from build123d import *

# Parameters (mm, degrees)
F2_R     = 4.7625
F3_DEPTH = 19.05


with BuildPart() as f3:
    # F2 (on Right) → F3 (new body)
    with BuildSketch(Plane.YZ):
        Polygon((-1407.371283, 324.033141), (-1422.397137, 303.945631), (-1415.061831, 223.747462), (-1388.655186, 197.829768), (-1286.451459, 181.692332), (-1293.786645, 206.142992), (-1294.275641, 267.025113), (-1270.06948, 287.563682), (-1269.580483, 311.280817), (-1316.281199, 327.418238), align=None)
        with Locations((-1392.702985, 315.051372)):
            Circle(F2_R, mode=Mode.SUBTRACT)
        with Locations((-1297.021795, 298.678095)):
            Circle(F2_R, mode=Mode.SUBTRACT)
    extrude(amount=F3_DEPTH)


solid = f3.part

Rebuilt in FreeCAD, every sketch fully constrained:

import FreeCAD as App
import Part
import Sketcher
Q = App.Units.Quantity

doc = App.newDocument("Part")
body = doc.addObject("PartDesign::Body", "Body")

# Sketch on YZ plane
sketch1 = body.newObject("Sketcher::SketchObject", "Sketch")
sketch1.AttachmentSupport = (doc.getObject("YZ_Plane"), [""])
sketch1.MapMode = "FlatFace"
sketch1.addGeometry(Part.LineSegment(App.Vector(-1407.371283, 324.033141, 0), App.Vector(-1422.397137, 303.945631, 0)), False)
sketch1.addGeometry(Part.LineSegment(App.Vector(-1422.397137, 303.945631, 0), App.Vector(-1415.061831, 223.747462, 0)), False)
sketch1.addGeometry(Part.LineSegment(App.Vector(-1415.061831, 223.747462, 0), App.Vector(-1388.655186, 197.829768, 0)), False)
sketch1.addGeometry(Part.LineSegment(App.Vector(-1388.655186, 197.829768, 0), App.Vector(-1286.451459, 181.692332, 0)), False)
sketch1.addGeometry(Part.LineSegment(App.Vector(-1286.451459, 181.692332, 0), App.Vector(-1293.786645, 206.142992, 0)), False)
sketch1.addGeometry(Part.LineSegment(App.Vector(-1293.786645, 206.142992, 0), App.Vector(-1294.275641, 267.025113, 0)), False)
sketch1.addGeometry(Part.LineSegment(App.Vector(-1294.275641, 267.025113, 0), App.Vector(-1270.06948, 287.563682, 0)), False)
sketch1.addGeometry(Part.LineSegment(App.Vector(-1270.06948, 287.563682, 0), App.Vector(-1269.580483, 311.280817, 0)), False)
sketch1.addGeometry(Part.LineSegment(App.Vector(-1269.580483, 311.280817, 0), App.Vector(-1316.281199, 327.418238, 0)), False)
sketch1.addGeometry(Part.LineSegment(App.Vector(-1316.281199, 327.418238, 0), App.Vector(-1407.371283, 324.033141, 0)), False)
sketch1.addGeometry(Part.Circle(App.Vector(-1297.021795, 298.678095, 0), App.Vector(0, 0, 1), 4.7625), False)
sketch1.addGeometry(Part.Circle(App.Vector(-1392.702985, 315.051372, 0), App.Vector(0, 0, 1), 4.7625), False)
sketch1.addConstraint(Sketcher.Constraint("Coincident", 0, 2, 1, 1))
sketch1.addConstraint(Sketcher.Constraint("Coincident", 1, 2, 2, 1))
sketch1.addConstraint(Sketcher.Constraint("Coincident", 2, 2, 3, 1))
sketch1.addConstraint(Sketcher.Constraint("Coincident", 3, 2, 4, 1))
sketch1.addConstraint(Sketcher.Constraint("Coincident", 4, 2, 5, 1))
sketch1.addConstraint(Sketcher.Constraint("Coincident", 5, 2, 6, 1))
sketch1.addConstraint(Sketcher.Constraint("Coincident", 6, 2, 7, 1))
sketch1.addConstraint(Sketcher.Constraint("Coincident", 7, 2, 8, 1))
sketch1.addConstraint(Sketcher.Constraint("Coincident", 8, 2, 9, 1))
sketch1.addConstraint(Sketcher.Constraint("Coincident", 9, 2, 0, 1))
sketch1.addConstraint(Sketcher.Constraint("Equal", 10, 11))
sketch1.addConstraint(Sketcher.Constraint("Diameter", 10, Q("0.375 in")))
sketch1.addConstraint(Sketcher.Constraint("DistanceX", 8, 2, -1, 1, 1316.281199))
sketch1.addConstraint(Sketcher.Constraint("DistanceX", 11, 3, 2, 2, 4.047799))
sketch1.addConstraint(Sketcher.Constraint("DistanceY", 3, 2, 0, 2, 122.253299))
sketch1.addConstraint(Sketcher.Constraint("DistanceX", 11, 3, 7, 2, 123.122502))
sketch1.addConstraint(Sketcher.Constraint("DistanceX", 9, 2, 11, 3, 14.668298))
sketch1.addConstraint(Sketcher.Constraint("Distance", 0, 25.085541))
sketch1.addConstraint(Sketcher.Constraint("Distance", 1, 80.532931))
sketch1.addConstraint(Sketcher.Constraint("Distance", 2, 37.00051))
sketch1.addConstraint(Sketcher.Constraint("Distance", 6, 31.74541))
sketch1.addConstraint(Sketcher.Constraint("Distance", 9, 91.152961))
sketch1.addConstraint(Sketcher.Constraint("DistanceY", -1, 1, 11, 3, 315.051372))
sketch1.addConstraint(Sketcher.Constraint("DistanceY", -1, 1, 0, 2, 303.945631))
sketch1.addConstraint(Sketcher.Constraint("DistanceX", 1, 2, -1, 1, 1415.061831))
sketch1.addConstraint(Sketcher.Constraint("DistanceY", -1, 1, 2, 2, 197.829768))
sketch1.addConstraint(Sketcher.Constraint("DistanceX", 3, 2, -1, 1, 1286.451459))
sketch1.addConstraint(Sketcher.Constraint("DistanceY", -1, 1, 4, 2, 206.142992))
sketch1.addConstraint(Sketcher.Constraint("DistanceX", 5, 2, -1, 1, 1294.275641))
sketch1.addConstraint(Sketcher.Constraint("DistanceX", 6, 2, -1, 1, 1270.06948))
sketch1.addConstraint(Sketcher.Constraint("DistanceY", -1, 1, 6, 2, 287.563682))
sketch1.addConstraint(Sketcher.Constraint("DistanceY", -1, 1, 9, 2, 324.033141))
sketch1.addConstraint(Sketcher.Constraint("DistanceX", 11, 3, 10, 3, 95.68119))
sketch1.addConstraint(Sketcher.Constraint("DistanceX", 10, 3, 4, 2, 3.23515))
sketch1.addConstraint(Sketcher.Constraint("DistanceY", 7, 2, 8, 2, 16.137421))
sketch1.addConstraint(Sketcher.Constraint("DistanceY", -1, 1, 10, 3, 298.678095))
pad1 = body.newObject("PartDesign::Pad", "Pad")
pad1.Profile = sketch1
pad1.Length = Q("0.75 in")

doc.recompute()
